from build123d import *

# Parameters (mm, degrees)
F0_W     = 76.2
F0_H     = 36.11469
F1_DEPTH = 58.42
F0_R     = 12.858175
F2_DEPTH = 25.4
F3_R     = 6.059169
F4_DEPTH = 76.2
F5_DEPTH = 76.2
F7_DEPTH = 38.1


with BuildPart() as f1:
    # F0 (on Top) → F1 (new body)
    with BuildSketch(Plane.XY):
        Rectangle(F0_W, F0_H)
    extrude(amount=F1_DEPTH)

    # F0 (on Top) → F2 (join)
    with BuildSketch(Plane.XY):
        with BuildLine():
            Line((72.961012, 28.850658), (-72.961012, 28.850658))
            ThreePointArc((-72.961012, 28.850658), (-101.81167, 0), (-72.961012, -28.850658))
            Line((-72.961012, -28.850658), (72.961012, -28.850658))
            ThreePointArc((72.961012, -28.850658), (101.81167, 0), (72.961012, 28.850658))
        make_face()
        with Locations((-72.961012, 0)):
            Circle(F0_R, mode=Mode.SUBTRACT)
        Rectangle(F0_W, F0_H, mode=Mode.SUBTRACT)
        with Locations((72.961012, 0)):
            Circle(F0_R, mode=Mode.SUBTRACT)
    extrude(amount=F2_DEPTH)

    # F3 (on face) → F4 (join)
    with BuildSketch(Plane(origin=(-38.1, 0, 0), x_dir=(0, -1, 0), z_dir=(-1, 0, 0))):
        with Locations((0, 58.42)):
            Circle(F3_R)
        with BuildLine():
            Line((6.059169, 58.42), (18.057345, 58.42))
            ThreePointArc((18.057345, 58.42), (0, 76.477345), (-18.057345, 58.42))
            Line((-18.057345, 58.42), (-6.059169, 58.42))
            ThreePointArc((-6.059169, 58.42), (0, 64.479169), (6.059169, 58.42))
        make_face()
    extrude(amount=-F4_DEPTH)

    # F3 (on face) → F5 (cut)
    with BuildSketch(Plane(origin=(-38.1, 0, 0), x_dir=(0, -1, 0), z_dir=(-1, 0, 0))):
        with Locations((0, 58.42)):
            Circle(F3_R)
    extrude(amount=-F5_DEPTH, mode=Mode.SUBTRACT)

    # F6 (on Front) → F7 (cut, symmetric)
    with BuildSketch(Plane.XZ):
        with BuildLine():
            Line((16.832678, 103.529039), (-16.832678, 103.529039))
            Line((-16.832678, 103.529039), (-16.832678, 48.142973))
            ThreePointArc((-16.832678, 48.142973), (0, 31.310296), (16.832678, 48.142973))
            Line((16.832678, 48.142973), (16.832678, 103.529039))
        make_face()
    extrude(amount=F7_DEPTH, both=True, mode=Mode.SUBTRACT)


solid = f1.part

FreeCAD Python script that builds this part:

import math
import FreeCAD as App
import Part
import Sketcher
Q = App.Units.Quantity

doc = App.newDocument("Part")
params = doc.addObject("Spreadsheet::Sheet", "Params")
for row, (alias, value) in enumerate([
    ("sketch1_width", "3 in"),
    ("pad1_length", "2.3 in"),
    ("sketch2_width", "3 in"),
    ("pad2_length", "1 in"),
    ("pad3_length", "3 in"),
    ("pocket1_length", "3 in"),
    ("pocket2_length", "3 in"),
], start=1):
    params.set(f"A{row}", alias)
    params.set(f"B{row}", "=" + value)
    params.setAlias(f"B{row}", alias)

body = doc.addObject("PartDesign::Body", "Body")

sketch1 = doc.addObject("Sketcher::SketchObject", "Sketch")
body.addObject(sketch1)
sketch1.AttachmentSupport = (doc.XY_Plane, [""])
sketch1.MapMode = "FlatFace"
sketch1.addGeometry(Part.LineSegment(App.Vector(-38.1, 18.057345, 0), App.Vector(-38.1, -18.057345, 0)), False)
sketch1.addGeometry(Part.LineSegment(App.Vector(-38.1, -18.057345, 0), App.Vector(38.1, -18.057345, 0)), False)
sketch1.addGeometry(Part.LineSegment(App.Vector(38.1, -18.057345, 0), App.Vector(38.1, 18.057345, 0)), False)
sketch1.addGeometry(Part.LineSegment(App.Vector(38.1, 18.057345, 0), App.Vector(-38.1, 18.057345, 0)), False)
sketch1.addConstraint(Sketcher.Constraint("Coincident", 0, 2, 1, 1))
sketch1.addConstraint(Sketcher.Constraint("Coincident", 1, 2, 2, 1))
sketch1.addConstraint(Sketcher.Constraint("Coincident", 2, 2, 3, 1))
sketch1.addConstraint(Sketcher.Constraint("Coincident", 3, 2, 0, 1))
sketch1.addConstraint(Sketcher.Constraint("Vertical", 0))
sketch1.addConstraint(Sketcher.Constraint("Horizontal", 1))
sketch1.addConstraint(Sketcher.Constraint("Vertical", 2))
sketch1.addConstraint(Sketcher.Constraint("Horizontal", 3))
sketch1.addConstraint(Sketcher.Constraint("Symmetric", 0, 2, 2, 2, -1, 1))
sketch1.addConstraint(Sketcher.Constraint("DistanceX", 1, 1, 1, 2, Q("3 in")))
sketch1.addConstraint(Sketcher.Constraint("DistanceY", 0, 2, 0, 1, Q("36.11469 mm")))
sketch1.setExpression("Constraints[9]", "Params.sketch1_width")
pad1 = doc.addObject("PartDesign::Pad", "Pad")
body.addObject(pad1)
pad1.Profile = sketch1
pad1.setExpression("Length", "Params.pad1_length")

sketch2 = doc.addObject("Sketcher::SketchObject", "Sketch001")
body.addObject(sketch2)
sketch2.AttachmentSupport = (doc.XY_Plane, [""])
sketch2.MapMode = "FlatFace"
sketch2.addGeometry(Part.LineSegment(App.Vector(72.961012, 28.850658, 0), App.Vector(-72.961012, 28.850658, 0)), False)
sketch2.addGeometry(Part.ArcOfCircle(Part.Circle(App.Vector(-72.961012, 0, 0), App.Vector(0, 0, 1), 28.850658), math.radians(90), math.radians(270)), False)
sketch2.addGeometry(Part.LineSegment(App.Vector(-72.961012, -28.850658, 0), App.Vector(72.961012, -28.850658, 0)), False)
sketch2.addGeometry(Part.ArcOfCircle(Part.Circle(App.Vector(72.961012, 0, 0), App.Vector(0, 0, 1), 28.850658), math.radians(-90), math.radians(90)), False)
sketch2.addGeometry(Part.Circle(App.Vector(-72.961012, 0, 0), App.Vector(0, 0, 1), 12.858175), False)
sketch2.addGeometry(Part.LineSegment(App.Vector(38.1, -18.057345, 0), App.Vector(-38.1, -18.057345, 0)), False)
sketch2.addGeometry(Part.LineSegment(App.Vector(-38.1, -18.057345, 0), App.Vector(-38.1, 18.057345, 0)), False)
sketch2.addGeometry(Part.LineSegment(App.Vector(-38.1, 18.057345, 0), App.Vector(38.1, 18.057345, 0)), False)
sketch2.addGeometry(Part.LineSegment(App.Vector(38.1, 18.057345, 0), App.Vector(38.1, -18.057345, 0)), False)
sketch2.addGeometry(Part.Circle(App.Vector(72.961012, 0, 0), App.Vector(0, 0, 1), 12.858175), False)
sketch2.addConstraint(Sketcher.Constraint("Tangent", 0, 2, 1, 1))
sketch2.addConstraint(Sketcher.Constraint("Tangent", 1, 2, 2, 1))
sketch2.addConstraint(Sketcher.Constraint("Tangent", 2, 2, 3, 1))
sketch2.addConstraint(Sketcher.Constraint("Tangent", 3, 2, 0, 1))
sketch2.addConstraint(Sketcher.Constraint("Coincident", 5, 2, 6, 1))
sketch2.addConstraint(Sketcher.Constraint("Coincident", 6, 2, 7, 1))
sketch2.addConstraint(Sketcher.Constraint("Coincident", 7, 2, 8, 1))
sketch2.addConstraint(Sketcher.Constraint("Coincident", 8, 2, 5, 1))
sketch2.addConstraint(Sketcher.Constraint("Horizontal", 0))
sketch2.addConstraint(Sketcher.Constraint("Horizontal", 2))
sketch2.addConstraint(Sketcher.Constraint("Horizontal", 5))
sketch2.addConstraint(Sketcher.Constraint("Vertical", 6))
sketch2.addConstraint(Sketcher.Constraint("Horizontal", 7))
sketch2.addConstraint(Sketcher.Constraint("Vertical", 8))
sketch2.addConstraint(Sketcher.Constraint("Coincident", 4, 3, 1, 3))
sketch2.addConstraint(Sketcher.Constraint("Coincident", 9, 3, 3, 3))
sketch2.addConstraint(Sketcher.Constraint("Equal", 4, 9))
sketch2.addConstraint(Sketcher.Constraint("Symmetric", 1, 3, 3, 3, -1, 1))
sketch2.addConstraint(Sketcher.Constraint("Symmetric", 5, 2, 7, 2, -1, 1))
sketch2.addConstraint(Sketcher.Constraint("DistanceX", 5, 2, 5, 1, Q("3 in")))
sketch2.addConstraint(Sketcher.Constraint("Diameter", 4, Q("25.71635 mm")))
sketch2.addConstraint(Sketcher.Constraint("Radius", 1, Q("28.850658 mm")))
sketch2.addConstraint(Sketcher.Constraint("DistanceY", 6, 1, 6, 2, Q("36.11469 mm")))
sketch2.addConstraint(Sketcher.Constraint("DistanceX", 0, 2, 0, 1, Q("145.922024 mm")))
sketch2.setExpression("Constraints[19]", "Params.sketch2_width")
pad2 = doc.addObject("PartDesign::Pad", "Pad001")
body.addObject(pad2)
pad2.Profile = sketch2
pad2.setExpression("Length", "Params.pad2_length")

sketch3 = doc.addObject("Sketcher::SketchObject", "Sketch002")
body.addObject(sketch3)
sketch3.AttachmentSupport = (doc.YZ_Plane, [""])
sketch3.MapMode = "FlatFace"
sketch3.AttachmentOffset = App.Placement(App.Vector(0, 0, -1.5 * 25.4), App.Rotation())
sketch3.addGeometry(Part.ArcOfCircle(Part.Circle(App.Vector(0, 58.42, 0), App.Vector(0, 0, 1), 6.059169), math.radians(180), math.radians(360)), False)
sketch3.addGeometry(Part.LineSegment(App.Vector(-6.059169, 58.42, 0), App.Vector(-18.057345, 58.42, 0)), False)
sketch3.addGeometry(Part.ArcOfCircle(Part.Circle(App.Vector(0, 58.42, 0), App.Vector(0, 0, 1), 18.057345), math.radians(0), math.radians(180)), False)
sketch3.addGeometry(Part.LineSegment(App.Vector(18.057345, 58.42, 0), App.Vector(6.059169, 58.42, 0)), False)
sketch3.addConstraint(Sketcher.Constraint("Coincident", 0, 1, 1, 1))
sketch3.addConstraint(Sketcher.Constraint("Coincident", 1, 2, 2, 2))
sketch3.addConstraint(Sketcher.Constraint("Coincident", 2, 1, 3, 1))
sketch3.addConstraint(Sketcher.Constraint("Coincident", 3, 2, 0, 2))
sketch3.addConstraint(Sketcher.Constraint("Horizontal", 1))
sketch3.addConstraint(Sketcher.Constraint("Horizontal", 3))
sketch3.addConstraint(Sketcher.Constraint("Coincident", 2, 3, 0, 3))
sketch3.addConstraint(Sketcher.Constraint("Symmetric", 1, 2, 2, 1, -2))
sketch3.addConstraint(Sketcher.Constraint("Horizontal", 2, 3, 0, 1))
sketch3.addConstraint(Sketcher.Constraint("DistanceY", -1, 1, 0, 3, Q("2.3 in")))
sketch3.addConstraint(Sketcher.Constraint("Radius", 0, Q("6.059169 mm")))
sketch3.addConstraint(Sketcher.Constraint("Radius", 2, Q("18.057345 mm")))
pad3 = doc.addObject("PartDesign::Pad", "Pad002")
body.addObject(pad3)
pad3.Profile = sketch3
pad3.setExpression("Length", "Params.pad3_length")

sketch4 = doc.addObject("Sketcher::SketchObject", "Sketch003")
body.addObject(sketch4)
sketch4.AttachmentSupport = (doc.YZ_Plane, [""])
sketch4.MapMode = "FlatFace"
sketch4.AttachmentOffset = App.Placement(App.Vector(0, 0, -1.5 * 25.4), App.Rotation())
sketch4.addGeometry(Part.Circle(App.Vector(0, 58.42, 0), App.Vector(0, 0, 1), 6.059169), False)
sketch4.addConstraint(Sketcher.Constraint("PointOnObject", 0, 3, -2))
sketch4.addConstraint(Sketcher.Constraint("Diameter", 0, Q("0.4770999 in")))
sketch4.addConstraint(Sketcher.Constraint("DistanceY", -1, 1, 0, 3, Q("2.3 in")))
pocket1 = doc.addObject("PartDesign::Pocket", "Pocket")
body.addObject(pocket1)
pocket1.Profile = sketch4
pocket1.setExpression("Length", "Params.pocket1_length")
pocket1.Reversed = True

sketch5 = doc.addObject("Sketcher::SketchObject", "Sketch004")
body.addObject(sketch5)
sketch5.AttachmentSupport = (doc.XZ_Plane, [""])
sketch5.MapMode = "FlatFace"
sketch5.addGeometry(Part.LineSegment(App.Vector(16.832678, 103.529039, 0), App.Vector(-16.832678, 103.529039, 0)), False)
sketch5.addGeometry(Part.LineSegment(App.Vector(-16.832678, 103.529039, 0), App.Vector(-16.832678, 48.142973, 0)), False)
sketch5.addGeometry(Part.ArcOfCircle(Part.Circle(App.Vector(0, 48.142974, 0), App.Vector(0, 0, 1), 16.832678), math.radians(-179.999997), math.radians(-0.000003)), False)
sketch5.addGeometry(Part.LineSegment(App.Vector(16.832678, 48.142973, 0), App.Vector(16.832678, 103.529039, 0)), False)
sketch5.addConstraint(Sketcher.Constraint("Coincident", 0, 2, 1, 1))
sketch5.addConstraint(Sketcher.Constraint("Tangent", 1, 2, 2, 1))
sketch5.addConstraint(Sketcher.Constraint("Tangent", 2, 2, 3, 1))
sketch5.addConstraint(Sketcher.Constraint("Coincident", 3, 2, 0, 1))
sketch5.addConstraint(Sketcher.Constraint("Horizontal", 0))
sketch5.addConstraint(Sketcher.Constraint("Vertical", 1))
sketch5.addConstraint(Sketcher.Constraint("Vertical", 3))
sketch5.addConstraint(Sketcher.Constraint("PointOnObject", 2, 3, -2))
sketch5.addConstraint(Sketcher.Constraint("Radius", 2, Q("16.832678 mm")))
sketch5.addConstraint(Sketcher.Constraint("DistanceY", 1, 2, 1, 1, Q("55.386066 mm")))
sketch5.addConstraint(Sketcher.Constraint("DistanceY", -1, 1, 0, 2, Q("103.529039 mm")))
pocket2 = doc.addObject("PartDesign::Pocket", "Pocket001")
body.addObject(pocket2)
pocket2.Profile = sketch5
pocket2.setExpression("Length", "Params.pocket2_length")
pocket2.Midplane = True

doc.recompute()
